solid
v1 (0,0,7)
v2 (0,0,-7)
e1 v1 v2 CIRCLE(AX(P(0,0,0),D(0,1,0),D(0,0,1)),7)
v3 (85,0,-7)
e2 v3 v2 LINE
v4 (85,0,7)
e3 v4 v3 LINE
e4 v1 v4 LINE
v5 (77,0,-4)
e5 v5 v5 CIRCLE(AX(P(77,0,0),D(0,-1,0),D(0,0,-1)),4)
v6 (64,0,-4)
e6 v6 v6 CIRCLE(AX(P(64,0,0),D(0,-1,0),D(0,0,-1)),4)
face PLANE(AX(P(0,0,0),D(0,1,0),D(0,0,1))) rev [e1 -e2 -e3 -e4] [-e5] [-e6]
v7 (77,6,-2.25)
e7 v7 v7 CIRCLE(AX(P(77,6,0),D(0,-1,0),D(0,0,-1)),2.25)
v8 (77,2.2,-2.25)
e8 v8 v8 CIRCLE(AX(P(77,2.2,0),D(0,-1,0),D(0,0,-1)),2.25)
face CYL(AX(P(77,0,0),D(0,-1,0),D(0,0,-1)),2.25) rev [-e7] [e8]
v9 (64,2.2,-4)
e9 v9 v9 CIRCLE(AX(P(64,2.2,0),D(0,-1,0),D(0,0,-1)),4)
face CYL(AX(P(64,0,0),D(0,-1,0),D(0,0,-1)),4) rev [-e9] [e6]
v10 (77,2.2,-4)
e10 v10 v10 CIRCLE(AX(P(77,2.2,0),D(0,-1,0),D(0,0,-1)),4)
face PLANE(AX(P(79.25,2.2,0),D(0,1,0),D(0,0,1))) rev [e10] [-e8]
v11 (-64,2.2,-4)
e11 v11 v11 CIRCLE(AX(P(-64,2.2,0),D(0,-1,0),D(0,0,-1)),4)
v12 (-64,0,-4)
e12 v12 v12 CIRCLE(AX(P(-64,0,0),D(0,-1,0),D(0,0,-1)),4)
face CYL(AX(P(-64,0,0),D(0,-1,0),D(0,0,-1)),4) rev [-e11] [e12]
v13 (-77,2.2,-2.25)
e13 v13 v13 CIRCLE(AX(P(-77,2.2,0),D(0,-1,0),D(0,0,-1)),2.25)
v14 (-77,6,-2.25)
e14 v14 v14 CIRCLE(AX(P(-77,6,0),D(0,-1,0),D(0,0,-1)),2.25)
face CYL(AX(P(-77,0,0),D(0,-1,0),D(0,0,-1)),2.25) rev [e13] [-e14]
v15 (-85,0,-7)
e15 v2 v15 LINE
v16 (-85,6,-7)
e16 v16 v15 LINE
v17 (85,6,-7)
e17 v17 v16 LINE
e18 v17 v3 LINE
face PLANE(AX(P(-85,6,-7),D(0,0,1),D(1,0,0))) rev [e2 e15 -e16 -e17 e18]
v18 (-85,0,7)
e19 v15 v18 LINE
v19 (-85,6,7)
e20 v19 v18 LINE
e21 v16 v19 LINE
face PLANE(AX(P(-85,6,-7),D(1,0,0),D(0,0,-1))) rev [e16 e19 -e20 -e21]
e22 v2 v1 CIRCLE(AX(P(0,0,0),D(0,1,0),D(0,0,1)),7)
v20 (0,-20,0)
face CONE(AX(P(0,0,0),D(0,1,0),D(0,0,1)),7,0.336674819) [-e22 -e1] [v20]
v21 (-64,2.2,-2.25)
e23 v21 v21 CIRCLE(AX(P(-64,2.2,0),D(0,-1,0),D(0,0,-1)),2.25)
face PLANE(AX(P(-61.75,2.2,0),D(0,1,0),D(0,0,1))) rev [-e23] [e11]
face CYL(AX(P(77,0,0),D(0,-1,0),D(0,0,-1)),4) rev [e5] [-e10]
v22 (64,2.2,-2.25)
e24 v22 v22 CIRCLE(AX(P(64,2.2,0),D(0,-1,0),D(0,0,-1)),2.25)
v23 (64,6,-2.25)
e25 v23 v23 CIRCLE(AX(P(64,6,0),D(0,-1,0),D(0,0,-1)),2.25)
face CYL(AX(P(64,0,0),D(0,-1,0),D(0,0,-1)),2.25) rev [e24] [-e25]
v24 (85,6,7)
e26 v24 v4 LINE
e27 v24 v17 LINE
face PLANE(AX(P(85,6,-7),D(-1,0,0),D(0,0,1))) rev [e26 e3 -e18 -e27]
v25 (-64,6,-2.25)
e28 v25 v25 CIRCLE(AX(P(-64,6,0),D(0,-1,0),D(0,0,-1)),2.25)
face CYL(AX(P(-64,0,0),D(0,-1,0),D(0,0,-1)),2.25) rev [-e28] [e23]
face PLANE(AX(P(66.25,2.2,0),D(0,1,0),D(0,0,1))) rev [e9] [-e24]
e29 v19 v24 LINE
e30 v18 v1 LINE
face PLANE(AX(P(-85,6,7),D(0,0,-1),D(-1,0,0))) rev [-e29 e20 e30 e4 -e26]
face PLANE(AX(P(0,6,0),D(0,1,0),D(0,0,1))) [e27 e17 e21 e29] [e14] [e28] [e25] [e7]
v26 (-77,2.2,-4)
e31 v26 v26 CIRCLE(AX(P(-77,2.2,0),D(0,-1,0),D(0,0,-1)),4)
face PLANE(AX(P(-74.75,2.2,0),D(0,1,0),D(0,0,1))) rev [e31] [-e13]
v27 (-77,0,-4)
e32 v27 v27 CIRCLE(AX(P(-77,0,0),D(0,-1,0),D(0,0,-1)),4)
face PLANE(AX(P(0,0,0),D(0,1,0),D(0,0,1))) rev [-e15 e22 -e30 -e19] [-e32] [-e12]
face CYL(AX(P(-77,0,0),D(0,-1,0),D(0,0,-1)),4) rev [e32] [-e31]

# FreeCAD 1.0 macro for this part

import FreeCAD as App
import Part
import Sketcher

V = App.Vector

doc = App.newDocument("Part")
body = doc.addObject("PartDesign::Body", "Body")

# Sketch on XZ plane
sketch1 = doc.addObject("Sketcher::SketchObject", "Sketch")
body.addObject(sketch1)
sketch1.AttachmentSupport = (doc.XZ_Plane, [""])
sketch1.MapMode = "FlatFace"
sketch1.addGeometry(Part.LineSegment(V(-85, -7, 0), V(-85, 7, 0)), False)
sketch1.addGeometry(Part.LineSegment(V(-85, 7, 0), V(85, 7, 0)), False)
sketch1.addGeometry(Part.LineSegment(V(85, 7, 0), V(85, -7, 0)), False)
sketch1.addGeometry(Part.LineSegment(V(85, -7, 0), V(-85, -7, 0)), False)
sketch1.addConstraint(Sketcher.Constraint("Coincident", 0, 2, 1, 1))
sketch1.addConstraint(Sketcher.Constraint("Coincident", 1, 2, 2, 1))
sketch1.addConstraint(Sketcher.Constraint("Coincident", 2, 2, 3, 1))
sketch1.addConstraint(Sketcher.Constraint("Coincident", 3, 2, 0, 1))
sketch1.addConstraint(Sketcher.Constraint("Vertical", 0))
sketch1.addConstraint(Sketcher.Constraint("Horizontal", 1))
sketch1.addConstraint(Sketcher.Constraint("Vertical", 2))
sketch1.addConstraint(Sketcher.Constraint("Horizontal", 3))
sketch1.addConstraint(Sketcher.Constraint("Symmetric", 0, 2, 2, 2, -1, 1))
sketch1.addConstraint(Sketcher.Constraint("DistanceX", 1, 1, 1, 2, 170.0))
sketch1.addConstraint(Sketcher.Constraint("DistanceY", 0, 1, 0, 2, 14.0))
pad1 = doc.addObject("PartDesign::Pad", "Pad")
body.addObject(pad1)
pad1.Profile = sketch1
pad1.Length = 6
pad1.Reversed = True

# Sketch on XZ plane
sketch2 = doc.addObject("Sketcher::SketchObject", "Sketch001")
body.addObject(sketch2)
sketch2.AttachmentSupport = (doc.XZ_Plane, [""])
sketch2.MapMode = "FlatFace"
sketch2.addGeometry(Part.Circle(V(-77, 0, 0), V(0, 0, 1), 2.25), False)
sketch2.addGeometry(Part.Circle(V(-64, 0, 0), V(0, 0, 1), 2.25), False)
sketch2.addGeometry(Part.Circle(V(64, 0, 0), V(0, 0, 1), 2.25), False)
sketch2.addGeometry(Part.Circle(V(77, 0, 0), V(0, 0, 1), 2.25), False)
sketch2.addConstraint(Sketcher.Constraint("Equal", 0, 1))
sketch2.addConstraint(Sketcher.Constraint("Equal", 1, 2))
sketch2.addConstraint(Sketcher.Constraint("Equal", 2, 3))
sketch2.addConstraint(Sketcher.Constraint("Symmetric", 1, 3, 2, 3, -1, 1))
sketch2.addConstraint(Sketcher.Constraint("Symmetric", 0, 3, 3, 3, -1, 1))
sketch2.addConstraint(Sketcher.Constraint("PointOnObject", 0, 3, -1))
sketch2.addConstraint(Sketcher.Constraint("PointOnObject", 1, 3, -1))
sketch2.addConstraint(Sketcher.Constraint("Diameter", 0, 4.5))
sketch2.addConstraint(Sketcher.Constraint("DistanceX", 0, 3, -1, 1, 77.0))
sketch2.addConstraint(Sketcher.Constraint("DistanceX", 1, 3, -1, 1, 64.0))
doc.recompute()
hole = doc.addObject("PartDesign::Hole", "Hole")
body.addObject(hole)
hole.Profile = sketch2
hole.ThreadType = "None"
hole.Diameter = 4.5
hole.DepthType = "ThroughAll"
hole.HoleCutType = "Counterbore"
hole.HoleCutDiameter = 8
hole.HoleCutDepth = 2.2

# Sketch on XY plane
sketch3 = doc.addObject("Sketcher::SketchObject", "Sketch002")
body.addObject(sketch3)
sketch3.AttachmentSupport = (doc.XY_Plane, [""])
sketch3.MapMode = "FlatFace"
sketch3.addGeometry(Part.LineSegment(V(-7, 0, 0), V(0, -20, 0)), False)
sketch3.addGeometry(Part.LineSegment(V(0, -20, 0), V(0, 0, 0)), False)
sketch3.addGeometry(Part.LineSegment(V(0, 0, 0), V(-7, 0, 0)), False)
sketch3.addConstraint(Sketcher.Constraint("Coincident", 0, 2, 1, 1))
sketch3.addConstraint(Sketcher.Constraint("Coincident", 1, 2, 2, 1))
sketch3.addConstraint(Sketcher.Constraint("Coincident", 2, 2, 0, 1))
sketch3.addConstraint(Sketcher.Constraint("Vertical", 1))
sketch3.addConstraint(Sketcher.Constraint("Horizontal", 2))
sketch3.addConstraint(Sketcher.Constraint("Coincident", 1, 2, -1, 1))
sketch3.addConstraint(Sketcher.Constraint("DistanceX", 2, 2, 2, 1, 7.0))
sketch3.addConstraint(Sketcher.Constraint("DistanceY", 1, 1, 1, 2, 20.0))
revolution = doc.addObject("PartDesign::Revolution", "Revolution")
body.addObject(revolution)
revolution.Profile = sketch3
revolution.ReferenceAxis = (sketch3, ["V_Axis"])
revolution.Angle = 360

doc.recompute()
